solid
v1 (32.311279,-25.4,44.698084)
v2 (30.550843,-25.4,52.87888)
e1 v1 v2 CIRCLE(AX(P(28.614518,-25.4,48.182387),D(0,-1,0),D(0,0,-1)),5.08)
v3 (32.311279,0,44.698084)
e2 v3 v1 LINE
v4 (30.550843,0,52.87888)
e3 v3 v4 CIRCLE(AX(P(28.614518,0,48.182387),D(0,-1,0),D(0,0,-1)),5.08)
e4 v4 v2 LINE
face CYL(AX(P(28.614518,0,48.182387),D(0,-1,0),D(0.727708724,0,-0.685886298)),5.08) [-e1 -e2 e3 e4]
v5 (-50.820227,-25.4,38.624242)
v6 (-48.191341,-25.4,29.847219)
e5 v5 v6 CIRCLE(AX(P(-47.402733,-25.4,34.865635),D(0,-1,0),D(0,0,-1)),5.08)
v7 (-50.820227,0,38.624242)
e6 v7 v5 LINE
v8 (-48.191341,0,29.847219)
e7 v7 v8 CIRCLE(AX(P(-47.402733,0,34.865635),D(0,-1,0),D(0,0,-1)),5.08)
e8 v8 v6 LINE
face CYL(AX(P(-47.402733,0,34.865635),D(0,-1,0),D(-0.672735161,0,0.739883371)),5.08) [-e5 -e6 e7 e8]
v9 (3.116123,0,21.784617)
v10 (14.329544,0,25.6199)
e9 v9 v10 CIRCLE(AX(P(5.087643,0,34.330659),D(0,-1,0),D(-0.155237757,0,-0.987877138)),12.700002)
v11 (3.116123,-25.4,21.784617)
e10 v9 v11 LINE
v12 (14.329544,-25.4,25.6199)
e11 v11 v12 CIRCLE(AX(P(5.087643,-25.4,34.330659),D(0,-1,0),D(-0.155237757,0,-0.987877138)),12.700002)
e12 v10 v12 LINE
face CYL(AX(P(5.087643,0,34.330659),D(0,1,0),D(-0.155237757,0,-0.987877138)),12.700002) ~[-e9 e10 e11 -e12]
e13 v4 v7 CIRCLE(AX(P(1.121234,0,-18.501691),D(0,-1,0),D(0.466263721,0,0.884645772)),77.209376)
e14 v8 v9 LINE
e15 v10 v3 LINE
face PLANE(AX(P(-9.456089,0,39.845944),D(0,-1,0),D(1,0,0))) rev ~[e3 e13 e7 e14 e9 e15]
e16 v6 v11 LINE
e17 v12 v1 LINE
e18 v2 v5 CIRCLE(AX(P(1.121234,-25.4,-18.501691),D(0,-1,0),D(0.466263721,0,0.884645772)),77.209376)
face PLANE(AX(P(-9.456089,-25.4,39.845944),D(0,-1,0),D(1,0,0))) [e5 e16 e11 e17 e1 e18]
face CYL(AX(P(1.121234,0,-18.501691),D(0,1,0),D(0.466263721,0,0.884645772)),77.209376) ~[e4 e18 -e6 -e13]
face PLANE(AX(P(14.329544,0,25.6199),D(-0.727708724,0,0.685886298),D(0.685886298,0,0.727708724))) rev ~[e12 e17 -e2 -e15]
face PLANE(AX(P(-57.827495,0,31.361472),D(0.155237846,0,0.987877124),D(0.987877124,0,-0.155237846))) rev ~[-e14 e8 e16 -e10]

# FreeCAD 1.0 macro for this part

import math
import FreeCAD as App
import Part
import Sketcher
from FreeCAD import Vector
Q = App.Units.Quantity


def edges_at(feature, points):
    """Names of the edges that pass closest to the given points."""
    edges = feature.Shape.Edges
    near = lambda p: min(range(len(edges)), key=lambda i: edges[i].distToShape(Part.Vertex(*p))[0])
    return sorted({f"Edge{near(p) + 1}" for p in points})

doc = App.newDocument("Part")
body = doc.addObject("PartDesign::Body", "Body")

# Sketch on XZ plane
sketch1 = body.newObject("Sketcher::SketchObject", "Sketch")
sketch1.AttachmentSupport = (doc.getObject("XZ_Plane"), [""])
sketch1.MapMode = "FlatFace"
sketch1.addGeometry(Part.LineSegment(Vector(14, 26, 0), Vector(37, 50, 0)), False)
sketch1.addGeometry(Part.ArcOfCircle(Part.Circle(Vector(1, -19, 0), Vector(0, 0, 1), 77), math.radians(62), math.radians(140)), False)
sketch1.addGeometry(Part.LineSegment(Vector(-58, 31, 0), Vector(3, 22, 0)), False)
sketch1.addGeometry(Part.ArcOfCircle(Part.Circle(Vector(5, 34, 0), Vector(0, 0, 1), 13), math.radians(-99), math.radians(-43)), False)
sketch1.addConstraint(Sketcher.Constraint("Coincident", 0, 2, 1, 1))
sketch1.addConstraint(Sketcher.Constraint("Coincident", 1, 2, 2, 1))
sketch1.addConstraint(Sketcher.Constraint("Tangent", 2, 2, 3, 1))
sketch1.addConstraint(Sketcher.Constraint("Tangent", 3, 2, 0, 1))
sketch1.addConstraint(Sketcher.Constraint("Radius", 3, Q("0.5000001 in")))
sketch1.addConstraint(Sketcher.Constraint("Radius", 1, Q("77.209376 mm")))
sketch1.addConstraint(Sketcher.Constraint("DistanceY", -1, 1, 3, 2, Q("25.6199 mm")))
sketch1.addConstraint(Sketcher.Constraint("DistanceY", 3, 3, 0, 2, Q("15.470598 mm")))
sketch1.addConstraint(Sketcher.Constraint("DistanceX", 3, 3, 3, 2, Q("9.241901 mm")))
sketch1.addConstraint(Sketcher.Constraint("DistanceY", 1, 3, -1, 1, Q("18.501691 mm")))
sketch1.addConstraint(Sketcher.Constraint("DistanceY", -1, 1, 1, 2, Q("31.361472 mm")))
sketch1.addConstraint(Sketcher.Constraint("DistanceX", -1, 1, 1, 3, Q("1.121234 mm")))
pad1 = body.newObject("PartDesign::Pad", "Pad")
pad1.Profile = sketch1
pad1.Length = Q("1 in")
doc.recompute()

fillet = body.newObject("PartDesign::Fillet", "Fillet")
fillet.Base = (pad1, edges_at(pad1, [(-57.827, -12.7, 31.361), (37.121, -12.7, 49.801)]))
fillet.Radius = Q("0.2 in")

doc.recompute()
